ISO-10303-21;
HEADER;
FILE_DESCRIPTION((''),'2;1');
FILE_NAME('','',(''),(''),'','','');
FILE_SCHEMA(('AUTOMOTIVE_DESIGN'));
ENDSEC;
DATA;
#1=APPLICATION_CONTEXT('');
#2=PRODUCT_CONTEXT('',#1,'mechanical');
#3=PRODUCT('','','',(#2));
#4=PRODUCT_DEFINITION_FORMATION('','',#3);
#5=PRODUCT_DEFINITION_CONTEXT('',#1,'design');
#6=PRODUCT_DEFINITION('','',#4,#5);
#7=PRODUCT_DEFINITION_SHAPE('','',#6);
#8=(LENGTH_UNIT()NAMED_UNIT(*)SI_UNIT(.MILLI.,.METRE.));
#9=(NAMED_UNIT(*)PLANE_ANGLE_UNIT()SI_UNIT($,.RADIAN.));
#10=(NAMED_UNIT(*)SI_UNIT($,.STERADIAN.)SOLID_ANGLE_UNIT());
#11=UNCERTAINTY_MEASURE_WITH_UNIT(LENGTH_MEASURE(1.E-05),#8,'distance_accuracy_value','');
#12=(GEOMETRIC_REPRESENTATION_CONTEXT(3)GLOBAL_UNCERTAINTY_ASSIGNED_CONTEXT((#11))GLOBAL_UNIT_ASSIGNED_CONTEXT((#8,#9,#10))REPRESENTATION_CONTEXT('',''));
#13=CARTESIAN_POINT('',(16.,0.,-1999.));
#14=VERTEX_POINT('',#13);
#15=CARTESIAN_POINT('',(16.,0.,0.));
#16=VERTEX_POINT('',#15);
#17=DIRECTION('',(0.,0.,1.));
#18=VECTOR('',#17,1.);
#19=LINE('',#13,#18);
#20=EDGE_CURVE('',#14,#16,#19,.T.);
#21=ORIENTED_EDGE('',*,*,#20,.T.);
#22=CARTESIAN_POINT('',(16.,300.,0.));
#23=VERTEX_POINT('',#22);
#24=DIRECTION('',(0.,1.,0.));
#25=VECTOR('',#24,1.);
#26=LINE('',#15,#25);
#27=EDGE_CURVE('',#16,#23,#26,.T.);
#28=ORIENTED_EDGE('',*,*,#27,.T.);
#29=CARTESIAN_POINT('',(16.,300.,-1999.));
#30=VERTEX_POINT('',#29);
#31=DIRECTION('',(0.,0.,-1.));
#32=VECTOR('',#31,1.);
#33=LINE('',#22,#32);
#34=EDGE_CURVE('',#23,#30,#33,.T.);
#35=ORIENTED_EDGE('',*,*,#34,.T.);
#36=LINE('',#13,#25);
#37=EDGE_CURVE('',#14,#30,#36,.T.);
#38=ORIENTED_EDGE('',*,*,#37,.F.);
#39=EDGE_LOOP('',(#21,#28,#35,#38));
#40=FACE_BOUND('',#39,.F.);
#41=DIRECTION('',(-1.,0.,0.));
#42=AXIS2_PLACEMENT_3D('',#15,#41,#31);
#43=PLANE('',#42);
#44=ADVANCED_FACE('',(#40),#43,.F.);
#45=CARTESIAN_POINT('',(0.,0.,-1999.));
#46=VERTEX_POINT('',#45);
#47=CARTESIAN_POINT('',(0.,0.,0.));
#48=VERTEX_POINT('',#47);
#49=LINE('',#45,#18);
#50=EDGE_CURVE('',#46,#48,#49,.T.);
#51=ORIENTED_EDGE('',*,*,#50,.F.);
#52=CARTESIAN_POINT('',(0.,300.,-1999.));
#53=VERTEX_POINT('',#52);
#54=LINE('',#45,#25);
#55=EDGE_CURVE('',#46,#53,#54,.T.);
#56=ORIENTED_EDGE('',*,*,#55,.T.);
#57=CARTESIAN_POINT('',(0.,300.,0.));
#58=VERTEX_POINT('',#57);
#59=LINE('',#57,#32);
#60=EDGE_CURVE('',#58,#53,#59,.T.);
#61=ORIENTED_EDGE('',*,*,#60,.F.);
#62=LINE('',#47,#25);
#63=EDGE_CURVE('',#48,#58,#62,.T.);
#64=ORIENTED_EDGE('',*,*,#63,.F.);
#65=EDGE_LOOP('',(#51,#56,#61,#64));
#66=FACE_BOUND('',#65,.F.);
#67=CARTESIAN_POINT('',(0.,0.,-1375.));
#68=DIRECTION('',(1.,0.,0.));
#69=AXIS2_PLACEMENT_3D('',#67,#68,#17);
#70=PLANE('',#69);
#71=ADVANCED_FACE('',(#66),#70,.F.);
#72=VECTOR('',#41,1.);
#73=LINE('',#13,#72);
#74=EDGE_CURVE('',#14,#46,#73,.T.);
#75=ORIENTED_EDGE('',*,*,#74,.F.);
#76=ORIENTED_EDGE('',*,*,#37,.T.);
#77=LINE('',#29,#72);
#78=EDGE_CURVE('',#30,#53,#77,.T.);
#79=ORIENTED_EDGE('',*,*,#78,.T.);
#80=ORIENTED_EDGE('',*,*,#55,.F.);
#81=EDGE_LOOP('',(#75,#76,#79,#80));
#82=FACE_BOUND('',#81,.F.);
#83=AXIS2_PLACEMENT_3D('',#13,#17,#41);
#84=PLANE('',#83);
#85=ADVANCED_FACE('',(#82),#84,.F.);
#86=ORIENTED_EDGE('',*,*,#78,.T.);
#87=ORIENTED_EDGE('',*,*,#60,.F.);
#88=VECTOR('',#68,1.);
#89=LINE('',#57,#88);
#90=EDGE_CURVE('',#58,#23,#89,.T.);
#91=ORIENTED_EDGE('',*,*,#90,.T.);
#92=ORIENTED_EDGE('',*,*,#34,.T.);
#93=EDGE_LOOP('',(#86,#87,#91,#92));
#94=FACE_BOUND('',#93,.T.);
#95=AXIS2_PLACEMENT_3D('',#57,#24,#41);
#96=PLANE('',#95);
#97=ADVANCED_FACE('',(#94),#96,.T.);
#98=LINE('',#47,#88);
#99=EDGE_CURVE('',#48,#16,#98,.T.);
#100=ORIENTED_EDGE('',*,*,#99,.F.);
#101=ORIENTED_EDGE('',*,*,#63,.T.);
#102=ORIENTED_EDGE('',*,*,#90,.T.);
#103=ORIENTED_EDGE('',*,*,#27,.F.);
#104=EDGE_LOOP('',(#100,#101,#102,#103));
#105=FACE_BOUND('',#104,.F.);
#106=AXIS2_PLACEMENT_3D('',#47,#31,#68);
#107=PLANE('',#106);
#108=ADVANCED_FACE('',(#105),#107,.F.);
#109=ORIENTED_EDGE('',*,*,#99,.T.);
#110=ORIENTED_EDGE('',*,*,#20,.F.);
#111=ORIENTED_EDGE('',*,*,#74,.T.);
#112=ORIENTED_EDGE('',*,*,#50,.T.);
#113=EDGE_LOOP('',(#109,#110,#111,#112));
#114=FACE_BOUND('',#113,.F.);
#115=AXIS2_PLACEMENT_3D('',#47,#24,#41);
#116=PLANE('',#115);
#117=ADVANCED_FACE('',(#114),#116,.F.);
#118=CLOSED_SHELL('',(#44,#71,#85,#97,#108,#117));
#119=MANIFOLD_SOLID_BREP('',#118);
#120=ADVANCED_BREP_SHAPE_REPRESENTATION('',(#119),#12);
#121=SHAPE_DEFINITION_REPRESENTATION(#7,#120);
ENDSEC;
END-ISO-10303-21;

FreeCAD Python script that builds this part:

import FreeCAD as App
import Part
import Sketcher
Q = App.Units.Quantity


def add_polygon(sketch, points):
    """Adds a closed chain of lines whose ends are joined by coincident constraints."""
    first, n = sketch.GeometryCount, len(points)
    for a, b in zip(points, points[1:] + points[:1]):
        sketch.addGeometry(Part.LineSegment(App.Vector(*a, 0), App.Vector(*b, 0)), False)
    for i in range(n):
        sketch.addConstraint(Sketcher.Constraint("Coincident", first + i, 2, first + (i + 1) % n, 1))

doc = App.newDocument("Part")
body = doc.addObject("PartDesign::Body", "Body")

# Sketch on XZ plane
sketch1 = body.newObject("Sketcher::SketchObject", "Sketch")
sketch1.AttachmentSupport = (doc.getObject("XZ_Plane"), [""])
sketch1.MapMode = "FlatFace"
add_polygon(sketch1, [(0, 0), (16, 0), (16, -1999), (0, -1999)])  # lines 0-3
sketch1.addConstraint([
    Sketcher.Constraint("Horizontal", 0),
    Sketcher.Constraint("Vertical", 1),
    Sketcher.Constraint("Horizontal", 2),
    Sketcher.Constraint("Vertical", 3),
    Sketcher.Constraint("Coincident", 3, 2, -1, 1),
    Sketcher.Constraint("DistanceX", 0, 1, 0, 2, Q("16 mm")),
    Sketcher.Constraint("DistanceY", 1, 2, 1, 1, Q("1999 mm")),
])
pad1 = body.newObject("PartDesign::Pad", "Pad")
pad1.Profile = sketch1
pad1.Length = 300
pad1.Reversed = True

doc.recompute()
